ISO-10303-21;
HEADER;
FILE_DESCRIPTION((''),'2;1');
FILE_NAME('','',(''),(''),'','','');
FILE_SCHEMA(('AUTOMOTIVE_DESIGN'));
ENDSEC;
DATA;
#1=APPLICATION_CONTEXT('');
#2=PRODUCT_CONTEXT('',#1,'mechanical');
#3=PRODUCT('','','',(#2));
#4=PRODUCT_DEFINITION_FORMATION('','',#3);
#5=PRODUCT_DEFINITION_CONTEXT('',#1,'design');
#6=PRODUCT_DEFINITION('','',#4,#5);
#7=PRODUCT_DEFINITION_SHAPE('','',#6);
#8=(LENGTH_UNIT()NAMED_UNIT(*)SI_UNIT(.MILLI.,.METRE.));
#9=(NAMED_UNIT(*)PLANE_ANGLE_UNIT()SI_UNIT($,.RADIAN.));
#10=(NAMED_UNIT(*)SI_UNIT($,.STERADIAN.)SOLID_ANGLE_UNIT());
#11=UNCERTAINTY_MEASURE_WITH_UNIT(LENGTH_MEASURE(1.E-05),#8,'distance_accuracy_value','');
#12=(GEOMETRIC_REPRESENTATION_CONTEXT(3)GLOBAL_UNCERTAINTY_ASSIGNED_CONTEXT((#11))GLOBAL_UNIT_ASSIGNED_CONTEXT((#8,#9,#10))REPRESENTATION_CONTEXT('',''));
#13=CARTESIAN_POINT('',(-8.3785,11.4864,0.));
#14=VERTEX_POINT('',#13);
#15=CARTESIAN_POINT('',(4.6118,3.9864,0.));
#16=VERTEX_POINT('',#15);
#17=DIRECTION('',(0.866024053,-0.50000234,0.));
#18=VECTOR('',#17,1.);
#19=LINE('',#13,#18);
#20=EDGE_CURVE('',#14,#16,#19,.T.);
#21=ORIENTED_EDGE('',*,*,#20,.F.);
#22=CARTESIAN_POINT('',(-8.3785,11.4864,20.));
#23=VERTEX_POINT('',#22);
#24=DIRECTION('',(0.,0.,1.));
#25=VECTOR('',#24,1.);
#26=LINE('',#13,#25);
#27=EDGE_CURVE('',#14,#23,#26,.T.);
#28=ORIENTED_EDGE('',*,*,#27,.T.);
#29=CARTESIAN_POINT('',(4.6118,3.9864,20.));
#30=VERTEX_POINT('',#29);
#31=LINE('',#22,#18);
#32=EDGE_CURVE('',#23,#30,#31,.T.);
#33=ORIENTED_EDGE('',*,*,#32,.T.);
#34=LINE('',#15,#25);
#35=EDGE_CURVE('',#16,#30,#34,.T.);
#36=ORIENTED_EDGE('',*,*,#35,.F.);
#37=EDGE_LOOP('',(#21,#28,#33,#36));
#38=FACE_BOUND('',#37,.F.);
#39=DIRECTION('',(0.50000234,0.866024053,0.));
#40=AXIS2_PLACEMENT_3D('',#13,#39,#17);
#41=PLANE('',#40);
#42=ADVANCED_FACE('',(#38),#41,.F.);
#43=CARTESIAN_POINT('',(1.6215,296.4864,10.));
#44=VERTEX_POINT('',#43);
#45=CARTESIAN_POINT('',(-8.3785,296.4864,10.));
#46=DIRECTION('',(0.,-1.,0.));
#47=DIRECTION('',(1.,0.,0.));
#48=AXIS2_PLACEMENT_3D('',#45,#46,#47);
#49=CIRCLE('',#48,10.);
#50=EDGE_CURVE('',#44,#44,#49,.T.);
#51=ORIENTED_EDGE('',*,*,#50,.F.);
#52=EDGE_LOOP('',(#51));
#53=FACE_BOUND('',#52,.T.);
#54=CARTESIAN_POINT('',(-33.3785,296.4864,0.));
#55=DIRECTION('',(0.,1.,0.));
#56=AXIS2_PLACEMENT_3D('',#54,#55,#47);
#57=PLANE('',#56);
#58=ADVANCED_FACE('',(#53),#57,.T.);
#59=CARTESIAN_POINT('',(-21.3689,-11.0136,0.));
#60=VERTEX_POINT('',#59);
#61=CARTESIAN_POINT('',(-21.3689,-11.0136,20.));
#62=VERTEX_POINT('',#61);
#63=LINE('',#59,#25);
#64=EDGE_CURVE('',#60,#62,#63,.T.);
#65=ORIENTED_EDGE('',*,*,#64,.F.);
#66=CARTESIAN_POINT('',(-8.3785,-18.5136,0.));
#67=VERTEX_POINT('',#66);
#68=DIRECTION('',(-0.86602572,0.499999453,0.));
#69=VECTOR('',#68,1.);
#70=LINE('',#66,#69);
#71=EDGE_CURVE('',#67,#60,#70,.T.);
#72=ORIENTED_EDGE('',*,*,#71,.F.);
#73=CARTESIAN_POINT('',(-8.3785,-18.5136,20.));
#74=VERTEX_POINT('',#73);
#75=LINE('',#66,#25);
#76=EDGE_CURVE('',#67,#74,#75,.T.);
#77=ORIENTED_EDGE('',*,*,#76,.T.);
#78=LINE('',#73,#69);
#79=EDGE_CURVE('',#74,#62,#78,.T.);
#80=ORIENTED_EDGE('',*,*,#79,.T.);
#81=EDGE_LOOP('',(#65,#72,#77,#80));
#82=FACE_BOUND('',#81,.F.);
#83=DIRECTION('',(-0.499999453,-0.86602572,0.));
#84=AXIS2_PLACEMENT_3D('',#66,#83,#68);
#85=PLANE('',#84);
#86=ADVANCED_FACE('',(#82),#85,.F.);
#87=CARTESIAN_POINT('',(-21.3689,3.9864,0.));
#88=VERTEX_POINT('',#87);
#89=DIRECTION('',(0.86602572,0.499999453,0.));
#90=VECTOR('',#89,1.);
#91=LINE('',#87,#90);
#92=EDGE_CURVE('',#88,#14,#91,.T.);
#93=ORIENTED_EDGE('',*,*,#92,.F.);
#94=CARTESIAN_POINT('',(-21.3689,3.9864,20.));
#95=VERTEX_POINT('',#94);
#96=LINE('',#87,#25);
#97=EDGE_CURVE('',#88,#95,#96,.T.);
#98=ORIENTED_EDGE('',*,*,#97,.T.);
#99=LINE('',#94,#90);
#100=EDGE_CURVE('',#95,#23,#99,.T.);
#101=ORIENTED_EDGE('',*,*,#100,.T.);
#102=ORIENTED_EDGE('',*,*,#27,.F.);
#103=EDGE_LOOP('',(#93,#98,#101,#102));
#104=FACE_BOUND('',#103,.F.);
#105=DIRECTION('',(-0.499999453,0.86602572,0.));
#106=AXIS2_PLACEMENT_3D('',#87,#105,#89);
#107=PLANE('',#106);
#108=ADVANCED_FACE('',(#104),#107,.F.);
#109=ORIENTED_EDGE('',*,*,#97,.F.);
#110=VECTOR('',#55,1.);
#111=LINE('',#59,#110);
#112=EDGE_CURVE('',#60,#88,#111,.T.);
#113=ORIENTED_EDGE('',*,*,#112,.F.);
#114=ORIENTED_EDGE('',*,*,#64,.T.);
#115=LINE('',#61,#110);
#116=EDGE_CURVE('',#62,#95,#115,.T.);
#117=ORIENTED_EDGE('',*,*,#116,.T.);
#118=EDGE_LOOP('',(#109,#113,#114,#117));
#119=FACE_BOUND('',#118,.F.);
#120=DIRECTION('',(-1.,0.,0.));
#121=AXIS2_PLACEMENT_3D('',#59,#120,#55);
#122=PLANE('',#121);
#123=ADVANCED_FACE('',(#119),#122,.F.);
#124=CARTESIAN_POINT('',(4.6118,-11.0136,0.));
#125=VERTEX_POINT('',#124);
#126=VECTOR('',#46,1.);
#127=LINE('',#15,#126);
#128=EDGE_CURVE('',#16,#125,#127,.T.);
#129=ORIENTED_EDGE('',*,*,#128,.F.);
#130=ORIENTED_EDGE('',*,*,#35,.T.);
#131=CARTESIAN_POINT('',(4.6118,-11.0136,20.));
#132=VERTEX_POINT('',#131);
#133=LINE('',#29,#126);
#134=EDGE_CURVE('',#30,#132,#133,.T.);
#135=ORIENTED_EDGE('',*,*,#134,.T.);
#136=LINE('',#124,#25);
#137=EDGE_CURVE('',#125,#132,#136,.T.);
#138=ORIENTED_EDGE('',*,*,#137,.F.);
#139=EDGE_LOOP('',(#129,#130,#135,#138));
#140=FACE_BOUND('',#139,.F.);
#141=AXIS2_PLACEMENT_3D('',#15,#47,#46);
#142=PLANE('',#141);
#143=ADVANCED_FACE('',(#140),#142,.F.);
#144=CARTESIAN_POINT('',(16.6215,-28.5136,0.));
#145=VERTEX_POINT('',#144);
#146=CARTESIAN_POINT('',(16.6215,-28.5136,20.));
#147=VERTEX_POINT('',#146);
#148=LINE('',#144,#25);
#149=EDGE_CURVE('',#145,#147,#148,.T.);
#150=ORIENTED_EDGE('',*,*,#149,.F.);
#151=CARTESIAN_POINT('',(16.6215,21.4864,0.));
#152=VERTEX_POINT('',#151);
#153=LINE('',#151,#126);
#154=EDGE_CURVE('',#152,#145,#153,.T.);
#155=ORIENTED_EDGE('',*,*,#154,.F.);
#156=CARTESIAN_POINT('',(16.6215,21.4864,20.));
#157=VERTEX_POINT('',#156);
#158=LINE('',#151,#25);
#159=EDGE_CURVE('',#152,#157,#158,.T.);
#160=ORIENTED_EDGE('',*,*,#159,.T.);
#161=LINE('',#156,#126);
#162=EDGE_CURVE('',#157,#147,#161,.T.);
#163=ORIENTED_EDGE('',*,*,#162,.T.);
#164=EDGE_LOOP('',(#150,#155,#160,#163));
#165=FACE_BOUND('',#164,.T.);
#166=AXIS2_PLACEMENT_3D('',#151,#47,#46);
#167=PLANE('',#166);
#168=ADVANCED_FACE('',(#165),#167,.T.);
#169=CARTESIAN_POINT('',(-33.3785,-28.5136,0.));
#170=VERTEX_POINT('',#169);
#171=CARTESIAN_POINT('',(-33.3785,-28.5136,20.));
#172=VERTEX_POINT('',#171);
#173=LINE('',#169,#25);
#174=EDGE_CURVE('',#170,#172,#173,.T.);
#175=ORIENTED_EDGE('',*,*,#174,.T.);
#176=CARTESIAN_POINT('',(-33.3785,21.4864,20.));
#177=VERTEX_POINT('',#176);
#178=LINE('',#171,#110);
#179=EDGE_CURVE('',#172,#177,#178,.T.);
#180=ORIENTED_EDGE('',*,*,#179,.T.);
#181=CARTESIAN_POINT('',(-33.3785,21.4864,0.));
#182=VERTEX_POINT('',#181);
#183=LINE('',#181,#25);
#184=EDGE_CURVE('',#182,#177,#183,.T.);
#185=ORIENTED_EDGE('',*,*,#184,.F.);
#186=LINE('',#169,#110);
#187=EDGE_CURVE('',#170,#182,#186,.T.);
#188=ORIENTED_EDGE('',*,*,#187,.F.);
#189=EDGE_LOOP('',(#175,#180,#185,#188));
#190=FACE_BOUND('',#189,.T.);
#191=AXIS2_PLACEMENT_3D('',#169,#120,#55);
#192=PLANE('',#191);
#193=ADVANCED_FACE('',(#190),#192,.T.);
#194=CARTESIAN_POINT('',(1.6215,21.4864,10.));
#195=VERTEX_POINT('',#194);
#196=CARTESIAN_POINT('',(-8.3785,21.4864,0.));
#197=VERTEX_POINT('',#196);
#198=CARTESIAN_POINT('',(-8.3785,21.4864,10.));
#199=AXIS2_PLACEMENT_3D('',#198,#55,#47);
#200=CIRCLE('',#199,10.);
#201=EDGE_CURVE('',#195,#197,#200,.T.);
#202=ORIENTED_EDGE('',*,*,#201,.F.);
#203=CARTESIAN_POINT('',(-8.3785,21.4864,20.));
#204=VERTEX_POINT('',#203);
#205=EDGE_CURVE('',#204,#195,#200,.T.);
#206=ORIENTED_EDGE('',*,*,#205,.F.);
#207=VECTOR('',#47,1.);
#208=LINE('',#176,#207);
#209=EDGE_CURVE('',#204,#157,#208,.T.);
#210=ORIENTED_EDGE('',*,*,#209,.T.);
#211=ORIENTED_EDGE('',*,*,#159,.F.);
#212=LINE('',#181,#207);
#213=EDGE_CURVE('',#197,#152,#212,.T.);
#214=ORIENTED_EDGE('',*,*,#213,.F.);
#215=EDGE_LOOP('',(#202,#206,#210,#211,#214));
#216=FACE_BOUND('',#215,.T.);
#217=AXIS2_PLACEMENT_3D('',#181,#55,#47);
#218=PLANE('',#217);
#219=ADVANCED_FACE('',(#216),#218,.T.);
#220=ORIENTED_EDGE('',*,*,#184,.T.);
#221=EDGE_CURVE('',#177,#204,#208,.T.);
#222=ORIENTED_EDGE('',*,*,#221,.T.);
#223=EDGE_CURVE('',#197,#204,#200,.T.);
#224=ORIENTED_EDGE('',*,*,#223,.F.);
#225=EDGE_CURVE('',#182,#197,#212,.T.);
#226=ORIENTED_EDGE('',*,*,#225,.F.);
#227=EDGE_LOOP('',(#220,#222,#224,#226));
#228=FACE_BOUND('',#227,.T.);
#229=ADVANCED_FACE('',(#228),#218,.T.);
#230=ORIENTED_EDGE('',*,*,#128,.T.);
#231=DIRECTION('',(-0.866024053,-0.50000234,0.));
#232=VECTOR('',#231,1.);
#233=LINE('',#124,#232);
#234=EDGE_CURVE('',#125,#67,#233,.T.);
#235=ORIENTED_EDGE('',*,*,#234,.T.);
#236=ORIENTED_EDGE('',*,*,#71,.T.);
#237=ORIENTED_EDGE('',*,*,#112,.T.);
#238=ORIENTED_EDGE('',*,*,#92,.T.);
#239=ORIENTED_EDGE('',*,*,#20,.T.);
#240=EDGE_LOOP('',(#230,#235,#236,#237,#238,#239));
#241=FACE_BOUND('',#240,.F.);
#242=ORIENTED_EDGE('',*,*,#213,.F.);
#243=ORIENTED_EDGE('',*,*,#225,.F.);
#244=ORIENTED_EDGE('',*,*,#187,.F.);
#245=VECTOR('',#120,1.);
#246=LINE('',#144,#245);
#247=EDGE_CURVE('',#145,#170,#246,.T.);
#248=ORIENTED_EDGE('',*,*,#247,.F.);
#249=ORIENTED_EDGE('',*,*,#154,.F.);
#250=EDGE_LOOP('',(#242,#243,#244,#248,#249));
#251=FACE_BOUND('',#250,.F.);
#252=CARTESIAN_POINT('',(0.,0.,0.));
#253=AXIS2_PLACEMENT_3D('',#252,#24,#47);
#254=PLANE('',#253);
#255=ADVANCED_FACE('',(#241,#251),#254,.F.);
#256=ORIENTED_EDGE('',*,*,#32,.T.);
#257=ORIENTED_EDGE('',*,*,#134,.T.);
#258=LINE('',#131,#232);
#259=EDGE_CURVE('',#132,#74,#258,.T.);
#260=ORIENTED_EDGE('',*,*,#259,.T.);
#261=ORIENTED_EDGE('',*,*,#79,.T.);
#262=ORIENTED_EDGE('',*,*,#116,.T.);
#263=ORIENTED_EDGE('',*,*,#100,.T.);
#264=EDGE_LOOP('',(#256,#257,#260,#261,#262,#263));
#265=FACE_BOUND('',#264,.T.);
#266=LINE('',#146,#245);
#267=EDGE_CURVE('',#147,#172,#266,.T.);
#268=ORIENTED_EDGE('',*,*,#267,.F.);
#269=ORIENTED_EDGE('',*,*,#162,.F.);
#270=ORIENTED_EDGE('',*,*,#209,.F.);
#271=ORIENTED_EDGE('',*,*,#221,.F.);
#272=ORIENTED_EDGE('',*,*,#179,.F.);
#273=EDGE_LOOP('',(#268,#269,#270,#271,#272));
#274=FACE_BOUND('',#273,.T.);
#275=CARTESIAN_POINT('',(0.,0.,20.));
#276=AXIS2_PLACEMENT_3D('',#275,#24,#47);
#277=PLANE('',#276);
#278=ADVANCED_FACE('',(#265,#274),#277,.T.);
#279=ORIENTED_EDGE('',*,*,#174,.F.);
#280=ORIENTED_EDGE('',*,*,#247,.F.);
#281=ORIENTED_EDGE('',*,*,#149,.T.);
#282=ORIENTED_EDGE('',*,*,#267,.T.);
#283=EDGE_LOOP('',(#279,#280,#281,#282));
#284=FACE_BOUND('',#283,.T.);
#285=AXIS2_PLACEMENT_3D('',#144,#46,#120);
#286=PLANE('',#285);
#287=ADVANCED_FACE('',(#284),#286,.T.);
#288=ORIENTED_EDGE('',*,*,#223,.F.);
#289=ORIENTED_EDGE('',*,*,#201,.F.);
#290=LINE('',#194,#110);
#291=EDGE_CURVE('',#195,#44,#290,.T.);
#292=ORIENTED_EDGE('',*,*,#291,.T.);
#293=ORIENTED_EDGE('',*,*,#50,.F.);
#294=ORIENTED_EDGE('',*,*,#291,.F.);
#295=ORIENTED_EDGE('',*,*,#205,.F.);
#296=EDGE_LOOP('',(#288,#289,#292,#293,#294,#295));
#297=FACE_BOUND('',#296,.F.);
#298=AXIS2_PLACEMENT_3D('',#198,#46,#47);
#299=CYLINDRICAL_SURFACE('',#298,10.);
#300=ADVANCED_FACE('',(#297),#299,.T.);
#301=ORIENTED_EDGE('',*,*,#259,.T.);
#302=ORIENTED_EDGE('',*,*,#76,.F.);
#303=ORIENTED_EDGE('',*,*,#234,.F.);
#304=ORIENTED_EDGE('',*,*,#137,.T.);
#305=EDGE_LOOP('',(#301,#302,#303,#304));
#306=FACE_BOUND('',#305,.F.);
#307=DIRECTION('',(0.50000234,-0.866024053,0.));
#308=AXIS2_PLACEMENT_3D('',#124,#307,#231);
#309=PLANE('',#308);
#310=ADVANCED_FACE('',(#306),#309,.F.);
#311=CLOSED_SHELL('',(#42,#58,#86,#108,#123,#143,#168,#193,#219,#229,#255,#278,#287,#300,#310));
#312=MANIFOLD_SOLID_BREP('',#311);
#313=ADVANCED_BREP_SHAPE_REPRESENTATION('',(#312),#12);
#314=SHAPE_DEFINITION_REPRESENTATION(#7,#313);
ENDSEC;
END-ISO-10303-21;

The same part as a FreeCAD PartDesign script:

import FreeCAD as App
import Part
import Sketcher

V = App.Vector
Q = App.Units.Quantity

doc = App.newDocument("Part")
body = doc.addObject("PartDesign::Body", "Body")

sketch1 = body.newObject("Sketcher::SketchObject", "Sketch")
sketch1.AttachmentSupport = (doc.getObject("XY_Plane"), [""])
sketch1.MapMode = "FlatFace"
sketch1.addGeometry([
    Part.LineSegment(V(17, 21, 0), V(-33, 21, 0)),
    Part.LineSegment(V(-33, 21, 0), V(-33, -29, 0)),
    Part.LineSegment(V(-33, -29, 0), V(17, -29, 0)),
    Part.LineSegment(V(17, -29, 0), V(17, 21, 0)),
    Part.LineSegment(V(5, 4, 0), V(5, -11, 0)),
    Part.LineSegment(V(5, -11, 0), V(-8, -19, 0)),
    Part.LineSegment(V(-8, -19, 0), V(-21, -11, 0)),
    Part.LineSegment(V(-21, -11, 0), V(-21, 4, 0)),
    Part.LineSegment(V(-21, 4, 0), V(-8, 11, 0)),
    Part.LineSegment(V(-8, 11, 0), V(5, 4, 0)),
], False)
sketch1.addConstraint([
    Sketcher.Constraint("Coincident", 0, 2, 1, 1),
    Sketcher.Constraint("Coincident", 1, 2, 2, 1),
    Sketcher.Constraint("Coincident", 2, 2, 3, 1),
    Sketcher.Constraint("Coincident", 3, 2, 0, 1),
    Sketcher.Constraint("Coincident", 4, 2, 5, 1),
    Sketcher.Constraint("Coincident", 5, 2, 6, 1),
    Sketcher.Constraint("Coincident", 6, 2, 7, 1),
    Sketcher.Constraint("Coincident", 7, 2, 8, 1),
    Sketcher.Constraint("Coincident", 8, 2, 9, 1),
    Sketcher.Constraint("Coincident", 9, 2, 4, 1),
    Sketcher.Constraint("Horizontal", 0),
    Sketcher.Constraint("Vertical", 1),
    Sketcher.Constraint("Horizontal", 2),
    Sketcher.Constraint("Vertical", 3),
    Sketcher.Constraint("Vertical", 4),
    Sketcher.Constraint("Vertical", 7),
    Sketcher.Constraint("Parallel", 5, 8),
    Sketcher.Constraint("Parallel", 6, 9),
    Sketcher.Constraint("Horizontal", 4, 2, 6, 2),
    Sketcher.Constraint("Horizontal", 7, 2, 9, 2),
    Sketcher.Constraint("Vertical", 5, 2, 8, 2),
    Sketcher.Constraint("Equal", 2, 1),
    Sketcher.Constraint("DistanceX", 0, 2, 0, 1, Q("50 mm")),
    Sketcher.Constraint("DistanceY", 4, 2, 4, 1, Q("15 mm")),
    Sketcher.Constraint("Angle", 5, Q("-149.9998 deg")),
    Sketcher.Constraint("Distance", 5, Q("15 mm")),
    Sketcher.Constraint("DistanceX", 1, 2, 5, 2, Q("25 mm")),
    Sketcher.Constraint("DistanceY", 1, 2, 5, 2, Q("10 mm")),
    Sketcher.Constraint("DistanceX", 6, 2, -1, 1, Q("21.369 mm")),
    Sketcher.Constraint("DistanceY", -1, 1, 0, 2, Q("21.4864 mm")),
])
pad1 = body.newObject("PartDesign::Pad", "Pad")
pad1.Profile = sketch1
pad1.Length = 20

sketch2 = body.newObject("Sketcher::SketchObject", "Sketch001")
sketch2.AttachmentSupport = (doc.getObject("XZ_Plane"), [""])
sketch2.MapMode = "FlatFace"
sketch2.AttachmentOffset = App.Placement(V(0, 0, -21.4864), App.Rotation())
sketch2.addGeometry(Part.Circle(V(-8, 10, 0), V(0, 0, 1), 10), False)
sketch2.addConstraint([
    Sketcher.Constraint("Diameter", 0, Q("20 mm")),
    Sketcher.Constraint("DistanceY", -1, 1, 0, 3, Q("10 mm")),
    Sketcher.Constraint("DistanceX", 0, 3, -1, 1, Q("8.3785 mm")),
])
pad2 = body.newObject("PartDesign::Pad", "Pad001")
pad2.Profile = sketch2
pad2.Length = 275
pad2.Reversed = True

doc.recompute()
